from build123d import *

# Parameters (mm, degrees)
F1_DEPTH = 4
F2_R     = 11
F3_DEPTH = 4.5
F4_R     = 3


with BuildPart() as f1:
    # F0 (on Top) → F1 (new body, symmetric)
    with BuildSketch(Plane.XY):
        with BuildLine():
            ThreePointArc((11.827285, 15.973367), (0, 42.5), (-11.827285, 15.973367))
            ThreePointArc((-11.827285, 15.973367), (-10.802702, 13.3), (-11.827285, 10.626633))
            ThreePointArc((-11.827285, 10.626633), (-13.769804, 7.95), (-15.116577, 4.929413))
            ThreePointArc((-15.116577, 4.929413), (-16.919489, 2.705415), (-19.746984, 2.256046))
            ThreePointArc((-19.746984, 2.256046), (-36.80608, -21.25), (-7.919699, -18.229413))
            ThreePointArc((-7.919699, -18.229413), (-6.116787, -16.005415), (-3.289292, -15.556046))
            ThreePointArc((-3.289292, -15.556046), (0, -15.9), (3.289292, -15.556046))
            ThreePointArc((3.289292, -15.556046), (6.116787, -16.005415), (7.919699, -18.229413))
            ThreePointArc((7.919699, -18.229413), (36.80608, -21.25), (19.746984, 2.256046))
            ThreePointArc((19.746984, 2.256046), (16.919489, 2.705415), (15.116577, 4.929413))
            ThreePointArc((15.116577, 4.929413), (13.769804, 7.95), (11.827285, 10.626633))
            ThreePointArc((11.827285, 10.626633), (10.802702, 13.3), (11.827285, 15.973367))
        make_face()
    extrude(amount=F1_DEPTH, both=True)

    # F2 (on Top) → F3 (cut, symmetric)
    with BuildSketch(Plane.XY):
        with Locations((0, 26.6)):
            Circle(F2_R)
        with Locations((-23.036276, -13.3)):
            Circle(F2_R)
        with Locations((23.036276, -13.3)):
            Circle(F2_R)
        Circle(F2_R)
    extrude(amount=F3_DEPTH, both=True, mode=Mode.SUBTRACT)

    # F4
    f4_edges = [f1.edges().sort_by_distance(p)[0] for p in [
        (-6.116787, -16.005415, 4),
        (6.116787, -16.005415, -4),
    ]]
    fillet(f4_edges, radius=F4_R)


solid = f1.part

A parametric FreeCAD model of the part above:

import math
import FreeCAD as App
import Part
import Sketcher
from FreeCAD import Vector
Q = App.Units.Quantity


def edges_at(feature, points):
    """Names of the edges that pass closest to the given points."""
    edges = feature.Shape.Edges
    near = lambda p: min(range(len(edges)), key=lambda i: edges[i].distToShape(Part.Vertex(*p))[0])
    return sorted({f"Edge{near(p) + 1}" for p in points})

doc = App.newDocument("Part")
params = doc.addObject("Spreadsheet::Sheet", "Params")
for row, (alias, value) in enumerate([
    ("sketch1_radius", "3.999999 mm"),
    ("sketch1_radius2", "15.9 mm"),
    ("pad1_length", "8 mm"),
    ("sketch2_diameter", "22 mm"),
    ("pocket1_length", "9 mm"),
    ("fillet_radius", "3 mm"),
], start=1):
    params.set(f"A{row}", alias)
    params.set(f"B{row}", "=" + value)
    params.setAlias(f"B{row}", alias)

body = doc.addObject("PartDesign::Body", "Body")

sketch1 = body.newObject("Sketcher::SketchObject", "Sketch")
sketch1.AttachmentSupport = (doc.getObject("XY_Plane"), [""])
sketch1.MapMode = "FlatFace"
sketch1.addGeometry(Part.ArcOfCircle(Part.Circle(Vector(0, 26.6, 0), Vector(0, 0, 1), 15.9), math.radians(-42), math.radians(222)), False)
sketch1.addGeometry(Part.ArcOfCircle(Part.Circle(Vector(-14.8, 13.3, 0), Vector(0, 0, 1), 4), math.radians(-42), math.radians(42)), False)
sketch1.addGeometry(Part.ArcOfCircle(Part.Circle(Vector(0, 0, 0), Vector(0, 0, 1), 15.9), math.radians(138), math.radians(162)), False)
sketch1.addGeometry(Part.ArcOfCircle(Part.Circle(Vector(-18.9, 6.2, 0), Vector(0, 0, 1), 4), math.radians(-102), math.radians(-18)), False)
sketch1.addGeometry(Part.ArcOfCircle(Part.Circle(Vector(-23, -13.3, 0), Vector(0, 0, 1), 15.9), math.radians(78), math.radians(342)), False)
sketch1.addGeometry(Part.ArcOfCircle(Part.Circle(Vector(-4.1, -19.5, 0), Vector(0, 0, 1), 4), math.radians(78), math.radians(162)), False)
sketch1.addGeometry(Part.ArcOfCircle(Part.Circle(Vector(0, 0, 0), Vector(0, 0, 1), 15.9), math.radians(-102), math.radians(-78)), False)
sketch1.addGeometry(Part.ArcOfCircle(Part.Circle(Vector(4.1, -19.5, 0), Vector(0, 0, 1), 4), math.radians(18), math.radians(102)), False)
sketch1.addGeometry(Part.ArcOfCircle(Part.Circle(Vector(23, -13.3, 0), Vector(0, 0, 1), 15.9), math.radians(-162), math.radians(102)), False)
sketch1.addGeometry(Part.ArcOfCircle(Part.Circle(Vector(18.9, 6.2, 0), Vector(0, 0, 1), 4), math.radians(-162), math.radians(-78)), False)
sketch1.addGeometry(Part.ArcOfCircle(Part.Circle(Vector(0, 0, 0), Vector(0, 0, 1), 15.9), math.radians(18), math.radians(42)), False)
sketch1.addGeometry(Part.ArcOfCircle(Part.Circle(Vector(14.8, 13.3, 0), Vector(0, 0, 1), 4), math.radians(138), math.radians(222)), False)
sketch1.addConstraint(Sketcher.Constraint("Tangent", 0, 2, 1, 2))
sketch1.addConstraint(Sketcher.Constraint("Tangent", 1, 1, 2, 1))
sketch1.addConstraint(Sketcher.Constraint("Tangent", 2, 2, 3, 2))
sketch1.addConstraint(Sketcher.Constraint("Tangent", 3, 1, 4, 1))
sketch1.addConstraint(Sketcher.Constraint("Tangent", 4, 2, 5, 2))
sketch1.addConstraint(Sketcher.Constraint("Tangent", 5, 1, 6, 1))
sketch1.addConstraint(Sketcher.Constraint("Tangent", 6, 2, 7, 2))
sketch1.addConstraint(Sketcher.Constraint("Tangent", 7, 1, 8, 1))
sketch1.addConstraint(Sketcher.Constraint("Tangent", 8, 2, 9, 2))
sketch1.addConstraint(Sketcher.Constraint("Tangent", 9, 1, 10, 1))
sketch1.addConstraint(Sketcher.Constraint("Tangent", 10, 2, 11, 2))
sketch1.addConstraint(Sketcher.Constraint("Tangent", 11, 1, 0, 1))
sketch1.addConstraint(Sketcher.Constraint("Coincident", 2, 3, -1, 1))
sketch1.addConstraint(Sketcher.Constraint("Coincident", 10, 3, -1, 1))
sketch1.addConstraint(Sketcher.Constraint("Equal", 1, 3))
sketch1.addConstraint(Sketcher.Constraint("Equal", 0, 4))
sketch1.addConstraint(Sketcher.Constraint("Equal", 3, 5))
sketch1.addConstraint(Sketcher.Constraint("Equal", 5, 7))
sketch1.addConstraint(Sketcher.Constraint("Equal", 4, 8))
sketch1.addConstraint(Sketcher.Constraint("Equal", 7, 9))
sketch1.addConstraint(Sketcher.Constraint("Equal", 2, 10))
sketch1.addConstraint(Sketcher.Constraint("Equal", 9, 11))
sketch1.addConstraint(Sketcher.Constraint("Symmetric", 5, 3, 7, 3, -2))
sketch1.addConstraint(Sketcher.Constraint("PointOnObject", 0, 3, -2))
sketch1.addConstraint(Sketcher.Constraint("Horizontal", 4, 3, 8, 3))
sketch1.addConstraint(Sketcher.Constraint("Vertical", 0, 2, 1, 1))
sketch1.addConstraint(Sketcher.Constraint("Radius", 1, Q("3.999999 mm")))
sketch1.addConstraint(Sketcher.Constraint("Radius", 0, Q("15.9 mm")))
sketch1.addConstraint(Sketcher.Constraint("DistanceY", -1, 1, 0, 3, Q("26.6 mm")))
sketch1.addConstraint(Sketcher.Constraint("DistanceY", 4, 3, -1, 1, Q("13.3 mm")))
sketch1.addConstraint(Sketcher.Constraint("Radius", 6, Q("15.900013 mm")))
sketch1.addConstraint(Sketcher.Constraint("DistanceX", 4, 2, -1, 1, Q("7.919699 mm")))
sketch1.addConstraint(Sketcher.Constraint("DistanceX", 3, 3, 5, 3, Q("14.802702 mm")))
sketch1.setExpression("Constraints[26]", "Params.sketch1_radius")
sketch1.setExpression("Constraints[27]", "Params.sketch1_radius2")
pad1 = body.newObject("PartDesign::Pad", "Pad")
pad1.Profile = sketch1
pad1.setExpression("Length", "Params.pad1_length")
pad1.Midplane = True

sketch2 = body.newObject("Sketcher::SketchObject", "Sketch001")
sketch2.AttachmentSupport = (doc.getObject("XY_Plane"), [""])
sketch2.MapMode = "FlatFace"
sketch2.addGeometry(Part.Circle(Vector(0, 27, 0), Vector(0, 0, 1), 11), False)
sketch2.addGeometry(Part.Circle(Vector(-23, -13, 0), Vector(0, 0, 1), 11), False)
sketch2.addGeometry(Part.Circle(Vector(23, -13, 0), Vector(0, 0, 1), 11), False)
sketch2.addGeometry(Part.Circle(Vector(0, 0, 0), Vector(0, 0, 1), 11), False)
sketch2.addConstraint(Sketcher.Constraint("Coincident", 3, 3, -1, 1))
sketch2.addConstraint(Sketcher.Constraint("Equal", 0, 1))
sketch2.addConstraint(Sketcher.Constraint("Equal", 1, 2))
sketch2.addConstraint(Sketcher.Constraint("Equal", 2, 3))
sketch2.addConstraint(Sketcher.Constraint("Symmetric", 1, 3, 2, 3, -2))
sketch2.addConstraint(Sketcher.Constraint("PointOnObject", 0, 3, -2))
sketch2.addConstraint(Sketcher.Constraint("Diameter", 0, Q("22 mm")))
sketch2.addConstraint(Sketcher.Constraint("DistanceY", -1, 1, 0, 3, Q("26.6 mm")))
sketch2.addConstraint(Sketcher.Constraint("DistanceY", 1, 3, -1, 1, Q("13.3 mm")))
sketch2.addConstraint(Sketcher.Constraint("DistanceX", 1, 3, -1, 1, Q("23.036276 mm")))
sketch2.setExpression("Constraints[6]", "Params.sketch2_diameter")
pocket1 = body.newObject("PartDesign::Pocket", "Pocket")
pocket1.Profile = sketch2
pocket1.setExpression("Length", "Params.pocket1_length")
pocket1.Midplane = True
doc.recompute()

fillet = body.newObject("PartDesign::Fillet", "Fillet")
fillet.Base = (pocket1, edges_at(pocket1, [(-6.117, -16.005, 4), (6.117, -16.005, -4)]))
fillet.setExpression("Radius", "Params.fillet_radius")

doc.recompute()
